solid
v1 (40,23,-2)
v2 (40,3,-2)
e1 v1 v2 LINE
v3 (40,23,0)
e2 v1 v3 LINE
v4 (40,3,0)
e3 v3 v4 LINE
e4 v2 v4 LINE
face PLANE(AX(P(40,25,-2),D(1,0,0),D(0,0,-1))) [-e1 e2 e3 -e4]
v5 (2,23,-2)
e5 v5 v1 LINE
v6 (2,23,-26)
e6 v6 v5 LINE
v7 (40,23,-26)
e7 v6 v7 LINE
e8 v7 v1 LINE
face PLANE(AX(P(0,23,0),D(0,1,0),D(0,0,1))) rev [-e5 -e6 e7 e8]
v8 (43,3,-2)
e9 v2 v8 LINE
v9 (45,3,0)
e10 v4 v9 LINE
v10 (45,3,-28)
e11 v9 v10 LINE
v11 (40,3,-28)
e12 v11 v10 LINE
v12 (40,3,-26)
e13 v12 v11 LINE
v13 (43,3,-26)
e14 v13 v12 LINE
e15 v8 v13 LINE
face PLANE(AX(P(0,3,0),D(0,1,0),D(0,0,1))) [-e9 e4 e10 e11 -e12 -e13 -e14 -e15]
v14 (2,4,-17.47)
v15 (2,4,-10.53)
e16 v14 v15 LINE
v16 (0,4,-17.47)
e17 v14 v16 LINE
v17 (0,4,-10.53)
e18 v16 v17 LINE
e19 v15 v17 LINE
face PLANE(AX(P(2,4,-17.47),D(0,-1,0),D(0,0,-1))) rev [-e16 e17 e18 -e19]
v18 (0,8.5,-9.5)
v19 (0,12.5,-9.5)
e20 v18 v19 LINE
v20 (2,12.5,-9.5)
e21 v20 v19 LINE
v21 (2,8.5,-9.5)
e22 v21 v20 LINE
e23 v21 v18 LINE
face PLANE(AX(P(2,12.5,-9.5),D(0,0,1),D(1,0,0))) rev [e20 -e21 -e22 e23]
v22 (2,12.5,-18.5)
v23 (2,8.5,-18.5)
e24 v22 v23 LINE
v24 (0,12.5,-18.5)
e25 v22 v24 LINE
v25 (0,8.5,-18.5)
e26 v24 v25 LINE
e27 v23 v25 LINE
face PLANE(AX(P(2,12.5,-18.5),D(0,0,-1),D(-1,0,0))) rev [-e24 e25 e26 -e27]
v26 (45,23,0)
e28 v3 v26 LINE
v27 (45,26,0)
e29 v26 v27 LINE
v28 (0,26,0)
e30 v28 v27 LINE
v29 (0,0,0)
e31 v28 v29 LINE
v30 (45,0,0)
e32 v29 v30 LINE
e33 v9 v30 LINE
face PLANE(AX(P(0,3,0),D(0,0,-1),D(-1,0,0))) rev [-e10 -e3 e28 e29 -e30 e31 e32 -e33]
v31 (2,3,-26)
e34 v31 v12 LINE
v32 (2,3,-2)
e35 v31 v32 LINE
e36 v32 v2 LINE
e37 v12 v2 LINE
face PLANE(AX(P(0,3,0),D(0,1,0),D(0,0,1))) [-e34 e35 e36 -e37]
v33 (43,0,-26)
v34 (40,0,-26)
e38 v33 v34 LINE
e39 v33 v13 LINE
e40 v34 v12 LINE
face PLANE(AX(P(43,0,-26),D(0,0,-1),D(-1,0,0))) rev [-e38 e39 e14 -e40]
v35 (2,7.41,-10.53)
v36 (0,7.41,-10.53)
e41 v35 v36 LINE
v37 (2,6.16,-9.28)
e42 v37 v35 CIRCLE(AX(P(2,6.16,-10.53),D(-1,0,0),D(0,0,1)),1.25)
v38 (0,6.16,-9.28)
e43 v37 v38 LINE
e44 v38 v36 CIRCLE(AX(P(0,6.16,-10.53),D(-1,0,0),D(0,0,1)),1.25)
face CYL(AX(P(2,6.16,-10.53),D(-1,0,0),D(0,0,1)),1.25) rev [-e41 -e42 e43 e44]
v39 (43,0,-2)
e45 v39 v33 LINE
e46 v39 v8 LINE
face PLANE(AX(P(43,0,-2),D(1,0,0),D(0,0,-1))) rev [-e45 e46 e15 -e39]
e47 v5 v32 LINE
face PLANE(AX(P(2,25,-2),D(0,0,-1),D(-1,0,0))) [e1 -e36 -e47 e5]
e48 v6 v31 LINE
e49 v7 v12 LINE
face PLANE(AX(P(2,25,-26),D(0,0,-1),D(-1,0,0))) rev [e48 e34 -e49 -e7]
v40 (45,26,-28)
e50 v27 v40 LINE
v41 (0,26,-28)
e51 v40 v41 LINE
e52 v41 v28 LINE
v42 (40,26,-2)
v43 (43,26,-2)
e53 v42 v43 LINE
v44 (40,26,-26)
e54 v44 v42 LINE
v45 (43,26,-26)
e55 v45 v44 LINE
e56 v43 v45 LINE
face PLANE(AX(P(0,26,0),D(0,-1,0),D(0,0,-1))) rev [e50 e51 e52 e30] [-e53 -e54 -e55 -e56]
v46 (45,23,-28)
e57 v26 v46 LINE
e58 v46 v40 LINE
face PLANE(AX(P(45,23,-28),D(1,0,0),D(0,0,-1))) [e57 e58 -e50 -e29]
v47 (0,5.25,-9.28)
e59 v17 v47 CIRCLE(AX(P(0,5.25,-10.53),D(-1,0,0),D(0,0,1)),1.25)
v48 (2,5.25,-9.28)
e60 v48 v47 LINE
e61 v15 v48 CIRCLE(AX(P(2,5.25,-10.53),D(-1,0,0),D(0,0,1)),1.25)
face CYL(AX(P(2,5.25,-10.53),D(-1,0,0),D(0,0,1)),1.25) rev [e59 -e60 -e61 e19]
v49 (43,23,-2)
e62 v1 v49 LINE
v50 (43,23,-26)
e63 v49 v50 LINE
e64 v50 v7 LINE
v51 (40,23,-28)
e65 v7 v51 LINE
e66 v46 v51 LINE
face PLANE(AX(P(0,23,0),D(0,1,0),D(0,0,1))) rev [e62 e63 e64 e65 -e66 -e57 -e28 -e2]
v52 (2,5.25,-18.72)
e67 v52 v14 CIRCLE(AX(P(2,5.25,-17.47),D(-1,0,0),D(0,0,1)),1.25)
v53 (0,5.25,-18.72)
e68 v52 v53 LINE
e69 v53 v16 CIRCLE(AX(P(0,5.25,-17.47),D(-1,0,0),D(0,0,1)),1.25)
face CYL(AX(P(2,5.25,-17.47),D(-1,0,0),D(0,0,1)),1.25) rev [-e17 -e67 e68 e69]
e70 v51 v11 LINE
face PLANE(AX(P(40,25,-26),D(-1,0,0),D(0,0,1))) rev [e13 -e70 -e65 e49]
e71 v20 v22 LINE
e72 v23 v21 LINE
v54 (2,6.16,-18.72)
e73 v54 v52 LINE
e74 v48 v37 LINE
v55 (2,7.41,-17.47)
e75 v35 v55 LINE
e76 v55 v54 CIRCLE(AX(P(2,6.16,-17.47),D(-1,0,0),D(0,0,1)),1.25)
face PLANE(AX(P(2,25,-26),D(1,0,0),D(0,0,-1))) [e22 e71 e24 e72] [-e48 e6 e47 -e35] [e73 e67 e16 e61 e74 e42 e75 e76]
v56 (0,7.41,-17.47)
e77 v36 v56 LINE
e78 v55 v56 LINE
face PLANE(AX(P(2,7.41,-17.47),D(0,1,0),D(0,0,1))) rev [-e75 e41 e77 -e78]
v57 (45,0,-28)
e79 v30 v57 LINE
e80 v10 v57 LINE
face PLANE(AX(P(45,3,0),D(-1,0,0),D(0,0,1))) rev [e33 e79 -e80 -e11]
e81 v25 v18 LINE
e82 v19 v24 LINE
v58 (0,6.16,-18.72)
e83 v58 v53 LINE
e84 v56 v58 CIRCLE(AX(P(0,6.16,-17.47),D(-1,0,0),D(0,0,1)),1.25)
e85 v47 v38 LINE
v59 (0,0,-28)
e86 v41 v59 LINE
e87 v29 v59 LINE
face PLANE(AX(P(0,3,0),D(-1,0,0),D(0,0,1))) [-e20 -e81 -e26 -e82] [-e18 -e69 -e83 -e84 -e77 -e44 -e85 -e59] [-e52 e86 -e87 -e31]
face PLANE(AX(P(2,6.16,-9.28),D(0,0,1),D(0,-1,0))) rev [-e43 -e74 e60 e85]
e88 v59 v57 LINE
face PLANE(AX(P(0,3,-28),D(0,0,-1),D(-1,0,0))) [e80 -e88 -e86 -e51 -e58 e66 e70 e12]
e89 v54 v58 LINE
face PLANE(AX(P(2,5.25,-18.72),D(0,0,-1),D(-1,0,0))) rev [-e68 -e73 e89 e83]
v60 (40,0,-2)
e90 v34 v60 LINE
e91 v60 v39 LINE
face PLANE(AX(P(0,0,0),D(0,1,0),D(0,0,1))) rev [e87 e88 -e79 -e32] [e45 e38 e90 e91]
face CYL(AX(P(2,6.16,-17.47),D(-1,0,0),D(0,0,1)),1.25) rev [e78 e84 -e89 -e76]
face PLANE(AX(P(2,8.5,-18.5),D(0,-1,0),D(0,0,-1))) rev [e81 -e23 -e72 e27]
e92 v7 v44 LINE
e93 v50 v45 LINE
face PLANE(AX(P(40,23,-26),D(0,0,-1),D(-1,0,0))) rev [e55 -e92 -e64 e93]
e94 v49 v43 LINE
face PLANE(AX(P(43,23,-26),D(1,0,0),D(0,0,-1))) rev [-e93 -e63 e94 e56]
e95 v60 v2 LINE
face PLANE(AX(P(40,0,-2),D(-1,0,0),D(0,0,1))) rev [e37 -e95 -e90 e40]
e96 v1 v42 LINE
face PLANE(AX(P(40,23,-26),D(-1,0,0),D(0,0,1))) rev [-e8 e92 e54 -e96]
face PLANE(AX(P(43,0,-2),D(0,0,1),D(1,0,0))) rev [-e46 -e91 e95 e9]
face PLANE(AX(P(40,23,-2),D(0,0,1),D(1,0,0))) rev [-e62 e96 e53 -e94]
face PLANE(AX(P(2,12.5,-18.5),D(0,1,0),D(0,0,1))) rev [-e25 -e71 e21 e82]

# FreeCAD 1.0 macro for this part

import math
import FreeCAD as App
import Part
import Sketcher

doc = App.newDocument("Part")
body = doc.addObject("PartDesign::Body", "Body")

# Sketch on XZ plane
sketch1 = body.newObject("Sketcher::SketchObject", "Sketch")
sketch1.AttachmentSupport = (doc.getObject("XZ_Plane"), [""])
sketch1.MapMode = "FlatFace"
sketch1.addGeometry(Part.LineSegment(App.Vector(0, -28, 0), App.Vector(0, 0, 0)), False)
sketch1.addGeometry(Part.LineSegment(App.Vector(0, 0, 0), App.Vector(45, 0, 0)), False)
sketch1.addGeometry(Part.LineSegment(App.Vector(45, 0, 0), App.Vector(45, -28, 0)), False)
sketch1.addGeometry(Part.LineSegment(App.Vector(45, -28, 0), App.Vector(0, -28, 0)), False)
sketch1.addConstraint(Sketcher.Constraint("Coincident", 0, 2, 1, 1))
sketch1.addConstraint(Sketcher.Constraint("Coincident", 1, 2, 2, 1))
sketch1.addConstraint(Sketcher.Constraint("Coincident", 2, 2, 3, 1))
sketch1.addConstraint(Sketcher.Constraint("Coincident", 3, 2, 0, 1))
sketch1.addConstraint(Sketcher.Constraint("Vertical", 0))
sketch1.addConstraint(Sketcher.Constraint("Horizontal", 1))
sketch1.addConstraint(Sketcher.Constraint("Vertical", 2))
sketch1.addConstraint(Sketcher.Constraint("Horizontal", 3))
sketch1.addConstraint(Sketcher.Constraint("Coincident", 0, 2, -1, 1))
sketch1.addConstraint(Sketcher.Constraint("DistanceX", 1, 1, 1, 2, 45.0))
sketch1.addConstraint(Sketcher.Constraint("DistanceY", 0, 1, 0, 2, 28.0))
pad1 = body.newObject("PartDesign::Pad", "Pad")
pad1.Profile = sketch1
pad1.Length = 3
pad1.Reversed = True

# Sketch on XZ plane
sketch2 = body.newObject("Sketcher::SketchObject", "Sketch001")
sketch2.AttachmentSupport = (doc.getObject("XZ_Plane"), [""])
sketch2.MapMode = "FlatFace"
sketch2.AttachmentOffset = App.Placement(App.Vector(0, 0, -3), App.Rotation())
sketch2.addGeometry(Part.LineSegment(App.Vector(40, -26, 0), App.Vector(40, -28, 0)), False)
sketch2.addGeometry(Part.LineSegment(App.Vector(40, -28, 0), App.Vector(0, -28, 0)), False)
sketch2.addGeometry(Part.LineSegment(App.Vector(0, -28, 0), App.Vector(0, 0, 0)), False)
sketch2.addGeometry(Part.LineSegment(App.Vector(0, 0, 0), App.Vector(40, 0, 0)), False)
sketch2.addGeometry(Part.LineSegment(App.Vector(40, 0, 0), App.Vector(40, -2, 0)), False)
sketch2.addGeometry(Part.LineSegment(App.Vector(40, -2, 0), App.Vector(2, -2, 0)), False)
sketch2.addGeometry(Part.LineSegment(App.Vector(2, -2, 0), App.Vector(2, -26, 0)), False)
sketch2.addGeometry(Part.LineSegment(App.Vector(2, -26, 0), App.Vector(40, -26, 0)), False)
sketch2.addConstraint(Sketcher.Constraint("Coincident", 0, 2, 1, 1))
sketch2.addConstraint(Sketcher.Constraint("Coincident", 1, 2, 2, 1))
sketch2.addConstraint(Sketcher.Constraint("Coincident", 2, 2, 3, 1))
sketch2.addConstraint(Sketcher.Constraint("Coincident", 3, 2, 4, 1))
sketch2.addConstraint(Sketcher.Constraint("Coincident", 4, 2, 5, 1))
sketch2.addConstraint(Sketcher.Constraint("Coincident", 5, 2, 6, 1))
sketch2.addConstraint(Sketcher.Constraint("Coincident", 6, 2, 7, 1))
sketch2.addConstraint(Sketcher.Constraint("Coincident", 7, 2, 0, 1))
sketch2.addConstraint(Sketcher.Constraint("Vertical", 0))
sketch2.addConstraint(Sketcher.Constraint("Horizontal", 1))
sketch2.addConstraint(Sketcher.Constraint("Vertical", 2))
sketch2.addConstraint(Sketcher.Constraint("Horizontal", 3))
sketch2.addConstraint(Sketcher.Constraint("Vertical", 4))
sketch2.addConstraint(Sketcher.Constraint("Horizontal", 5))
sketch2.addConstraint(Sketcher.Constraint("Vertical", 6))
sketch2.addConstraint(Sketcher.Constraint("Horizontal", 7))
sketch2.addConstraint(Sketcher.Constraint("Coincident", 2, 2, -1, 1))
sketch2.addConstraint(Sketcher.Constraint("Vertical", 0, 2, 3, 2))
sketch2.addConstraint(Sketcher.Constraint("Equal", 0, 4))
sketch2.addConstraint(Sketcher.Constraint("DistanceX", 1, 2, 1, 1, 40.0))
sketch2.addConstraint(Sketcher.Constraint("DistanceX", 5, 2, 5, 1, 38.0))
sketch2.addConstraint(Sketcher.Constraint("DistanceY", 0, 2, 0, 1, 2.0))
sketch2.addConstraint(Sketcher.Constraint("DistanceY", 2, 1, 2, 2, 28.0))
pad2 = body.newObject("PartDesign::Pad", "Pad001")
pad2.Profile = sketch2
pad2.Length = 22
pad2.Reversed = True

# Sketch on XZ plane
sketch3 = body.newObject("Sketcher::SketchObject", "Sketch002")
sketch3.AttachmentSupport = (doc.getObject("XZ_Plane"), [""])
sketch3.MapMode = "FlatFace"
sketch3.AttachmentOffset = App.Placement(App.Vector(0, 0, -25), App.Rotation())
sketch3.addGeometry(Part.LineSegment(App.Vector(0, -28, 0), App.Vector(0, 0, 0)), False)
sketch3.addGeometry(Part.LineSegment(App.Vector(0, 0, 0), App.Vector(45, 0, 0)), False)
sketch3.addGeometry(Part.LineSegment(App.Vector(45, 0, 0), App.Vector(45, -28, 0)), False)
sketch3.addGeometry(Part.LineSegment(App.Vector(45, -28, 0), App.Vector(0, -28, 0)), False)
sketch3.addGeometry(Part.LineSegment(App.Vector(43, -2, 0), App.Vector(40, -2, 0)), False)
sketch3.addGeometry(Part.LineSegment(App.Vector(40, -2, 0), App.Vector(40, -26, 0)), False)
sketch3.addGeometry(Part.LineSegment(App.Vector(40, -26, 0), App.Vector(43, -26, 0)), False)
sketch3.addGeometry(Part.LineSegment(App.Vector(43, -26, 0), App.Vector(43, -2, 0)), False)
sketch3.addConstraint(Sketcher.Constraint("Coincident", 0, 2, 1, 1))
sketch3.addConstraint(Sketcher.Constraint("Coincident", 1, 2, 2, 1))
sketch3.addConstraint(Sketcher.Constraint("Coincident", 2, 2, 3, 1))
sketch3.addConstraint(Sketcher.Constraint("Coincident", 3, 2, 0, 1))
sketch3.addConstraint(Sketcher.Constraint("Coincident", 4, 2, 5, 1))
sketch3.addConstraint(Sketcher.Constraint("Coincident", 5, 2, 6, 1))
sketch3.addConstraint(Sketcher.Constraint("Coincident", 6, 2, 7, 1))
sketch3.addConstraint(Sketcher.Constraint("Coincident", 7, 2, 4, 1))
sketch3.addConstraint(Sketcher.Constraint("Vertical", 0))
sketch3.addConstraint(Sketcher.Constraint("Horizontal", 1))
sketch3.addConstraint(Sketcher.Constraint("Vertical", 2))
sketch3.addConstraint(Sketcher.Constraint("Horizontal", 3))
sketch3.addConstraint(Sketcher.Constraint("Horizontal", 4))
sketch3.addConstraint(Sketcher.Constraint("Vertical", 5))
sketch3.addConstraint(Sketcher.Constraint("Horizontal", 6))
sketch3.addConstraint(Sketcher.Constraint("Vertical", 7))
sketch3.addConstraint(Sketcher.Constraint("Coincident", 0, 2, -1, 1))
sketch3.addConstraint(Sketcher.Constraint("DistanceX", 1, 1, 1, 2, 45.0))
sketch3.addConstraint(Sketcher.Constraint("DistanceX", 4, 2, 4, 1, 3.0))
sketch3.addConstraint(Sketcher.Constraint("DistanceY", 0, 1, 0, 2, 28.0))
sketch3.addConstraint(Sketcher.Constraint("DistanceY", 5, 2, 5, 1, 24.0))
sketch3.addConstraint(Sketcher.Constraint("DistanceX", -1, 1, 4, 2, 40.0))
sketch3.addConstraint(Sketcher.Constraint("DistanceY", 4, 2, -1, 1, 2.0))
pad3 = body.newObject("PartDesign::Pad", "Pad002")
pad3.Profile = sketch3
pad3.Length = 2

# Sketch on YZ plane
sketch4 = body.newObject("Sketcher::SketchObject", "Sketch003")
sketch4.AttachmentSupport = (doc.getObject("YZ_Plane"), [""])
sketch4.MapMode = "FlatFace"
sketch4.addGeometry(Part.LineSegment(App.Vector(6.2, -18.7, 0), App.Vector(5.2, -18.7, 0)), False)
sketch4.addGeometry(Part.ArcOfCircle(Part.Circle(App.Vector(5.3, -17.5, 0), App.Vector(0, 0, 1), 1.3), math.radians(-180), math.radians(-90)), False)
sketch4.addGeometry(Part.LineSegment(App.Vector(4, -17.5, 0), App.Vector(4, -10.5, 0)), False)
sketch4.addGeometry(Part.ArcOfCircle(Part.Circle(App.Vector(5.3, -10.5, 0), App.Vector(0, 0, 1), 1.3), math.radians(90), math.radians(180)), False)
sketch4.addGeometry(Part.LineSegment(App.Vector(5.2, -9.3, 0), App.Vector(6.2, -9.3, 0)), False)
sketch4.addGeometry(Part.ArcOfCircle(Part.Circle(App.Vector(6.2, -10.5, 0), App.Vector(0, 0, 1), 1.3), math.radians(0), math.radians(90)), False)
sketch4.addGeometry(Part.LineSegment(App.Vector(7.4, -10.5, 0), App.Vector(7.4, -17.5, 0)), False)
sketch4.addGeometry(Part.ArcOfCircle(Part.Circle(App.Vector(6.2, -17.5, 0), App.Vector(0, 0, 1), 1.3), math.radians(-90), math.radians(0)), False)
sketch4.addGeometry(Part.LineSegment(App.Vector(12.5, -18.5, 0), App.Vector(8.5, -18.5, 0)), False)
sketch4.addGeometry(Part.LineSegment(App.Vector(8.5, -18.5, 0), App.Vector(8.5, -9.5, 0)), False)
sketch4.addGeometry(Part.LineSegment(App.Vector(8.5, -9.5, 0), App.Vector(12.5, -9.5, 0)), False)
sketch4.addGeometry(Part.LineSegment(App.Vector(12.5, -9.5, 0), App.Vector(12.5, -18.5, 0)), False)
sketch4.addConstraint(Sketcher.Constraint("Tangent", 0, 2, 1, 2))
sketch4.addConstraint(Sketcher.Constraint("Tangent", 1, 1, 2, 1))
sketch4.addConstraint(Sketcher.Constraint("Tangent", 2, 2, 3, 2))
sketch4.addConstraint(Sketcher.Constraint("Tangent", 3, 1, 4, 1))
sketch4.addConstraint(Sketcher.Constraint("Tangent", 4, 2, 5, 2))
sketch4.addConstraint(Sketcher.Constraint("Tangent", 5, 1, 6, 1))
sketch4.addConstraint(Sketcher.Constraint("Tangent", 6, 2, 7, 2))
sketch4.addConstraint(Sketcher.Constraint("Tangent", 7, 1, 0, 1))
sketch4.addConstraint(Sketcher.Constraint("Coincident", 8, 2, 9, 1))
sketch4.addConstraint(Sketcher.Constraint("Coincident", 9, 2, 10, 1))
sketch4.addConstraint(Sketcher.Constraint("Coincident", 10, 2, 11, 1))
sketch4.addConstraint(Sketcher.Constraint("Coincident", 11, 2, 8, 1))
sketch4.addConstraint(Sketcher.Constraint("Horizontal", 0))
sketch4.addConstraint(Sketcher.Constraint("Vertical", 2))
sketch4.addConstraint(Sketcher.Constraint("Horizontal", 4))
sketch4.addConstraint(Sketcher.Constraint("Vertical", 6))
sketch4.addConstraint(Sketcher.Constraint("Horizontal", 8))
sketch4.addConstraint(Sketcher.Constraint("Vertical", 9))
sketch4.addConstraint(Sketcher.Constraint("Horizontal", 10))
sketch4.addConstraint(Sketcher.Constraint("Vertical", 11))
sketch4.addConstraint(Sketcher.Constraint("Equal", 1, 3))
sketch4.addConstraint(Sketcher.Constraint("Equal", 3, 5))
sketch4.addConstraint(Sketcher.Constraint("Equal", 5, 7))
sketch4.addConstraint(Sketcher.Constraint("DistanceX", 8, 2, 8, 1, 4.0))
sketch4.addConstraint(Sketcher.Constraint("DistanceY", 9, 1, 9, 2, 9.0))
sketch4.addConstraint(Sketcher.Constraint("Radius", 1, 1.25))
sketch4.addConstraint(Sketcher.Constraint("DistanceX", -1, 1, 1, 1, 4.0))
sketch4.addConstraint(Sketcher.Constraint("DistanceX", 0, 2, 0, 1, 0.91))
sketch4.addConstraint(Sketcher.Constraint("DistanceY", 2, 1, 2, 2, 6.94))
sketch4.addConstraint(Sketcher.Constraint("DistanceX", -1, 1, 8, 2, 8.5))
sketch4.addConstraint(Sketcher.Constraint("DistanceY", 8, 2, -1, 1, 18.5))
sketch4.addConstraint(Sketcher.Constraint("DistanceY", 1, 3, -1, 1, 17.47))
pocket1 = body.newObject("PartDesign::Pocket", "Pocket")
pocket1.Profile = sketch4
pocket1.Length = 2
pocket1.Reversed = True

# Sketch on XZ plane
sketch5 = body.newObject("Sketcher::SketchObject", "Sketch004")
sketch5.AttachmentSupport = (doc.getObject("XZ_Plane"), [""])
sketch5.MapMode = "FlatFace"
sketch5.AttachmentOffset = App.Placement(App.Vector(0, 0, -3), App.Rotation())
sketch5.addGeometry(Part.LineSegment(App.Vector(40, -26, 0), App.Vector(40, -2, 0)), False)
sketch5.addGeometry(Part.LineSegment(App.Vector(40, -2, 0), App.Vector(43, -2, 0)), False)
sketch5.addGeometry(Part.LineSegment(App.Vector(43, -2, 0), App.Vector(43, -26, 0)), False)
sketch5.addGeometry(Part.LineSegment(App.Vector(43, -26, 0), App.Vector(40, -26, 0)), False)
sketch5.addConstraint(Sketcher.Constraint("Coincident", 0, 2, 1, 1))
sketch5.addConstraint(Sketcher.Constraint("Coincident", 1, 2, 2, 1))
sketch5.addConstraint(Sketcher.Constraint("Coincident", 2, 2, 3, 1))
sketch5.addConstraint(Sketcher.Constraint("Coincident", 3, 2, 0, 1))
sketch5.addConstraint(Sketcher.Constraint("Vertical", 0))
sketch5.addConstraint(Sketcher.Constraint("Horizontal", 1))
sketch5.addConstraint(Sketcher.Constraint("Vertical", 2))
sketch5.addConstraint(Sketcher.Constraint("Horizontal", 3))
sketch5.addConstraint(Sketcher.Constraint("DistanceX", 1, 1, 1, 2, 3.0))
sketch5.addConstraint(Sketcher.Constraint("DistanceY", 0, 1, 0, 2, 24.0))
sketch5.addConstraint(Sketcher.Constraint("DistanceX", -1, 1, 0, 2, 40.0))
sketch5.addConstraint(Sketcher.Constraint("DistanceY", 0, 2, -1, 1, 2.0))
pocket2 = body.newObject("PartDesign::Pocket", "Pocket001")
pocket2.Profile = sketch5
pocket2.Length = 3
pocket2.Reversed = True

# Sketch on XZ plane
sketch6 = body.newObject("Sketcher::SketchObject", "Sketch005")
sketch6.AttachmentSupport = (doc.getObject("XZ_Plane"), [""])
sketch6.MapMode = "FlatFace"
sketch6.AttachmentOffset = App.Placement(App.Vector(0, 0, -25), App.Rotation())
sketch6.addGeometry(Part.LineSegment(App.Vector(0, -28, 0), App.Vector(0, 0, 0)), False)
sketch6.addGeometry(Part.LineSegment(App.Vector(0, 0, 0), App.Vector(45, 0, 0)), False)
sketch6.addGeometry(Part.LineSegment(App.Vector(45, 0, 0), App.Vector(45, -28, 0)), False)
sketch6.addGeometry(Part.LineSegment(App.Vector(45, -28, 0), App.Vector(0, -28, 0)), False)
sketch6.addGeometry(Part.LineSegment(App.Vector(43, -2, 0), App.Vector(40, -2, 0)), False)
sketch6.addGeometry(Part.LineSegment(App.Vector(40, -2, 0), App.Vector(40, -26, 0)), False)
sketch6.addGeometry(Part.LineSegment(App.Vector(40, -26, 0), App.Vector(43, -26, 0)), False)
sketch6.addGeometry(Part.LineSegment(App.Vector(43, -26, 0), App.Vector(43, -2, 0)), False)
sketch6.addConstraint(Sketcher.Constraint("Coincident", 0, 2, 1, 1))
sketch6.addConstraint(Sketcher.Constraint("Coincident", 1, 2, 2, 1))
sketch6.addConstraint(Sketcher.Constraint("Coincident", 2, 2, 3, 1))
sketch6.addConstraint(Sketcher.Constraint("Coincident", 3, 2, 0, 1))
sketch6.addConstraint(Sketcher.Constraint("Coincident", 4, 2, 5, 1))
sketch6.addConstraint(Sketcher.Constraint("Coincident", 5, 2, 6, 1))
sketch6.addConstraint(Sketcher.Constraint("Coincident", 6, 2, 7, 1))
sketch6.addConstraint(Sketcher.Constraint("Coincident", 7, 2, 4, 1))
sketch6.addConstraint(Sketcher.Constraint("Vertical", 0))
sketch6.addConstraint(Sketcher.Constraint("Horizontal", 1))
sketch6.addConstraint(Sketcher.Constraint("Vertical", 2))
sketch6.addConstraint(Sketcher.Constraint("Horizontal", 3))
sketch6.addConstraint(Sketcher.Constraint("Horizontal", 4))
sketch6.addConstraint(Sketcher.Constraint("Vertical", 5))
sketch6.addConstraint(Sketcher.Constraint("Horizontal", 6))
sketch6.addConstraint(Sketcher.Constraint("Vertical", 7))
sketch6.addConstraint(Sketcher.Constraint("Coincident", 0, 2, -1, 1))
sketch6.addConstraint(Sketcher.Constraint("DistanceX", 1, 1, 1, 2, 45.0))
sketch6.addConstraint(Sketcher.Constraint("DistanceX", 4, 2, 4, 1, 3.0))
sketch6.addConstraint(Sketcher.Constraint("DistanceY", 0, 1, 0, 2, 28.0))
sketch6.addConstraint(Sketcher.Constraint("DistanceY", 5, 2, 5, 1, 24.0))
sketch6.addConstraint(Sketcher.Constraint("DistanceX", -1, 1, 4, 2, 40.0))
sketch6.addConstraint(Sketcher.Constraint("DistanceY", 4, 2, -1, 1, 2.0))
pad4 = body.newObject("PartDesign::Pad", "Pad003")
pad4.Profile = sketch6
pad4.Length = 1
pad4.Reversed = True

doc.recompute()
